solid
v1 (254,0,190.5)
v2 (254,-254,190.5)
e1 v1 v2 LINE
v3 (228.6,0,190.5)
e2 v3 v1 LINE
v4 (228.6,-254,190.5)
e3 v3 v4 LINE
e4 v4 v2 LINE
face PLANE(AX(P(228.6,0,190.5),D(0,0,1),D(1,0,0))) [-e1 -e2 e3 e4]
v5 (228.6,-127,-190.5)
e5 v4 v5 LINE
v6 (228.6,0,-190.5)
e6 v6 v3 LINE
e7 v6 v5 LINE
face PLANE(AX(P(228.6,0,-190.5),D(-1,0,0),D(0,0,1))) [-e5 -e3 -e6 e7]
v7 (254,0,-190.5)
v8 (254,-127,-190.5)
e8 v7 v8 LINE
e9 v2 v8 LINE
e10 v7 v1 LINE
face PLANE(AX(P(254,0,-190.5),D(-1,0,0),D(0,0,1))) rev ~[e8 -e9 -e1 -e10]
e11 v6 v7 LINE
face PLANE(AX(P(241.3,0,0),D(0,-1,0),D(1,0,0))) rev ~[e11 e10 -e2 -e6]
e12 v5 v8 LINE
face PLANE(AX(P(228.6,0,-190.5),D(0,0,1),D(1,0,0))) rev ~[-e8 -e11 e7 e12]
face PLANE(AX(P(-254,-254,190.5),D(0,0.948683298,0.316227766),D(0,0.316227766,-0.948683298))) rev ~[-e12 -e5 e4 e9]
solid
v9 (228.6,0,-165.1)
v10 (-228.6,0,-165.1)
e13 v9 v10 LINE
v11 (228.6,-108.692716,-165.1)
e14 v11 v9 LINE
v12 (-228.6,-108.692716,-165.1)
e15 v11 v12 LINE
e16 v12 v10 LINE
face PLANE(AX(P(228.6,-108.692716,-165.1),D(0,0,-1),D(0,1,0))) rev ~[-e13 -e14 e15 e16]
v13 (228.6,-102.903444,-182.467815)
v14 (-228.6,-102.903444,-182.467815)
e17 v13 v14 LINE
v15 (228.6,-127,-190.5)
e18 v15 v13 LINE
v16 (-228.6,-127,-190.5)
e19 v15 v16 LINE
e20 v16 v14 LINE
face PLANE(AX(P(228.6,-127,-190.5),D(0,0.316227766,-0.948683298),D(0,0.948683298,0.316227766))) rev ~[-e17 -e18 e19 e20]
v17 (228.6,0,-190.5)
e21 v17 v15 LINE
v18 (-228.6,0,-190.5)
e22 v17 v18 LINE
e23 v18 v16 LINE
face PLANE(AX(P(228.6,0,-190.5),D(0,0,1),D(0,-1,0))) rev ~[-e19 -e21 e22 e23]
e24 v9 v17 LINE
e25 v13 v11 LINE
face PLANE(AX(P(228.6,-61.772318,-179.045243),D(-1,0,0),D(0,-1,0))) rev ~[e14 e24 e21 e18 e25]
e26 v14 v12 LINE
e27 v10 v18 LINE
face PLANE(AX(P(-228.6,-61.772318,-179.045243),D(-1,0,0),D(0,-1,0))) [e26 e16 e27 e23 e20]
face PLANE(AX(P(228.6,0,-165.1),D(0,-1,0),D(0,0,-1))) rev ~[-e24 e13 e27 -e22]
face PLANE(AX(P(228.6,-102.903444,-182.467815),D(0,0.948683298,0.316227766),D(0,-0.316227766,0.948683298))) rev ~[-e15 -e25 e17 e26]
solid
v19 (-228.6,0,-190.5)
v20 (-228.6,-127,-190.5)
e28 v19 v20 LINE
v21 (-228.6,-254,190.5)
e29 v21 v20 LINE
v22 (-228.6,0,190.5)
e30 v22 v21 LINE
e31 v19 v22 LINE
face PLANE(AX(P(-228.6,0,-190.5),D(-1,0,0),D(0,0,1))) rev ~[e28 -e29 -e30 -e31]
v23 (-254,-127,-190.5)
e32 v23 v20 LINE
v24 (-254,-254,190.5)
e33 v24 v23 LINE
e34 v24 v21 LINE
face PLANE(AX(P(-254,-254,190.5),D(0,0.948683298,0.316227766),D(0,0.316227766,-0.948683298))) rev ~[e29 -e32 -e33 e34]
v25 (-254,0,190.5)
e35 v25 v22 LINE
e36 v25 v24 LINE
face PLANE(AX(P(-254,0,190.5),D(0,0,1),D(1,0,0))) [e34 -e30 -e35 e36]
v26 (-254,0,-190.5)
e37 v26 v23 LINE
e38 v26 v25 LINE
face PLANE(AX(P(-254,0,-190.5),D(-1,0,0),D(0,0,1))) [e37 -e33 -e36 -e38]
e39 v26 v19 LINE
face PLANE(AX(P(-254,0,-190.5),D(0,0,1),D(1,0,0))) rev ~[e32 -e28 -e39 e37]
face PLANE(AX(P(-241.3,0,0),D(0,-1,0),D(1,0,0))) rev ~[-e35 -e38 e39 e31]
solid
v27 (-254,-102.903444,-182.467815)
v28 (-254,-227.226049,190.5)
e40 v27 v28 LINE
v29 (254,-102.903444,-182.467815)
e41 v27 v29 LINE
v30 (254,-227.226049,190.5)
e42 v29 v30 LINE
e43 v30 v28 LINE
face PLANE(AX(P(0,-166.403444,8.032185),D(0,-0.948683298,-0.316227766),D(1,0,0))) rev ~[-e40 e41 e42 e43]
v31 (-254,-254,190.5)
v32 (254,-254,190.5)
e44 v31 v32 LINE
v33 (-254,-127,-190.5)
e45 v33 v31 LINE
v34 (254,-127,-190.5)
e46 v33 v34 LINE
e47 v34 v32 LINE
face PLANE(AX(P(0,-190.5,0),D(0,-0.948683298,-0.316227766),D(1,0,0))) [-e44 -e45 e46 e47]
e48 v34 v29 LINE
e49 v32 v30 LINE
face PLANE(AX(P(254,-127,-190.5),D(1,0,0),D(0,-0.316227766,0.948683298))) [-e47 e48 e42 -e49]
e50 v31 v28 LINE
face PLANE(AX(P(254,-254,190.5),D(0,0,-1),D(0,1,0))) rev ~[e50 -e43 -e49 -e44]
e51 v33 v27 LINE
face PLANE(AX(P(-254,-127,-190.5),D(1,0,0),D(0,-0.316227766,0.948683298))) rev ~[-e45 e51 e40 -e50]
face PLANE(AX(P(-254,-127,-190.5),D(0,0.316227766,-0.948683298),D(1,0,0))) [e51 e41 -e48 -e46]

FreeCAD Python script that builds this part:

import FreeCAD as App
import Part
import Sketcher

V = App.Vector
Q = App.Units.Quantity


def add_polygon(sketch, points):
    """Adds a closed chain of lines whose ends are joined by coincident constraints."""
    first, n = sketch.GeometryCount, len(points)
    for a, b in zip(points, points[1:] + points[:1]):
        sketch.addGeometry(Part.LineSegment(App.Vector(*a, 0), App.Vector(*b, 0)), False)
    for i in range(n):
        sketch.addConstraint(Sketcher.Constraint("Coincident", first + i, 2, first + (i + 1) % n, 1))

doc = App.newDocument("Part")
body = doc.addObject("PartDesign::Body", "Body")

# Sketch on XZ plane
sketch1 = body.newObject("Sketcher::SketchObject", "Sketch")
sketch1.AttachmentSupport = (doc.getObject("XZ_Plane"), [""])
sketch1.MapMode = "FlatFace"
add_polygon(sketch1, [(-254, 190.5), (-254, -190.5), (-228.6, -190.5), (-228.6, 190.5)])  # lines 0-3
sketch1.addConstraint(Sketcher.Constraint("Vertical", 0))
sketch1.addConstraint(Sketcher.Constraint("Horizontal", 1))
sketch1.addConstraint(Sketcher.Constraint("Vertical", 2))
sketch1.addConstraint(Sketcher.Constraint("Horizontal", 3))
sketch1.addConstraint(Sketcher.Constraint("DistanceX", 1, 1, 1, 2, Q("1 in")))
sketch1.addConstraint(Sketcher.Constraint("DistanceY", 0, 2, 0, 1, Q("15 in")))
sketch1.addConstraint(Sketcher.Constraint("DistanceX", 0, 2, -1, 1, Q("10 in")))
sketch1.addConstraint(Sketcher.Constraint("DistanceY", 0, 2, -1, 1, Q("7.5 in")))
pad1 = body.newObject("PartDesign::Pad", "Pad")
pad1.Profile = sketch1
pad1.Length = Q("10 in")
body2 = doc.addObject("PartDesign::Body", "Body001")

# Sketch on XZ plane
sketch2 = body2.newObject("Sketcher::SketchObject", "Sketch001")
sketch2.AttachmentSupport = (doc.getObject("XZ_Plane001"), [""])
sketch2.MapMode = "FlatFace"
add_polygon(sketch2, [(228.6, 190.5), (228.6, -190.5), (254, -190.5), (254, 190.5)])  # lines 0-3
sketch2.addConstraint(Sketcher.Constraint("Vertical", 0))
sketch2.addConstraint(Sketcher.Constraint("Horizontal", 1))
sketch2.addConstraint(Sketcher.Constraint("Vertical", 2))
sketch2.addConstraint(Sketcher.Constraint("Horizontal", 3))
sketch2.addConstraint(Sketcher.Constraint("DistanceX", 1, 1, 1, 2, Q("1 in")))
sketch2.addConstraint(Sketcher.Constraint("DistanceY", 0, 2, 0, 1, Q("15 in")))
sketch2.addConstraint(Sketcher.Constraint("DistanceX", -1, 1, 0, 2, Q("9 in")))
sketch2.addConstraint(Sketcher.Constraint("DistanceY", 0, 2, -1, 1, Q("7.5 in")))
pad2 = body2.newObject("PartDesign::Pad", "Pad001")
pad2.Profile = sketch2
pad2.Length = Q("10 in")
body3 = doc.addObject("PartDesign::Body", "Body002")

# Sketch on YZ plane
sketch3 = body3.newObject("Sketcher::SketchObject", "Sketch002")
sketch3.AttachmentSupport = (doc.getObject("YZ_Plane002"), [""])
sketch3.MapMode = "FlatFace"
sketch3.AttachmentOffset = App.Placement(V(0, 0, -10 * 25.4), App.Rotation())
add_polygon(sketch3, [(-127, -190.5), (-254, -190.5), (-254, 190.5)])  # lines 0-2
sketch3.addConstraint(Sketcher.Constraint("Horizontal", 0))
sketch3.addConstraint(Sketcher.Constraint("Vertical", 1))
sketch3.addConstraint(Sketcher.Constraint("DistanceX", 0, 2, 0, 1, Q("5 in")))
sketch3.addConstraint(Sketcher.Constraint("DistanceY", 1, 1, 1, 2, Q("15 in")))
sketch3.addConstraint(Sketcher.Constraint("DistanceX", 0, 2, -1, 1, Q("10 in")))
sketch3.addConstraint(Sketcher.Constraint("DistanceY", 0, 2, -1, 1, Q("7.5 in")))
pad3 = body3.newObject("PartDesign::Pad", "Pad002")
pad3.Profile = sketch3
pad3.Length = Q("25 in")
doc.recompute()

body4 = doc.addObject("PartDesign::Body", "Body003")
body4.BaseFeature = body3
boolean = body.newObject("PartDesign::Boolean", "Boolean")
boolean.Type = "Cut"
boolean.addObjects([body4])
doc.recompute()

boolean2 = body2.newObject("PartDesign::Boolean", "Boolean001")
boolean2.Type = "Cut"
boolean2.addObjects([body3])
body5 = doc.addObject("PartDesign::Body", "Body004")

# Sketch on an angled plane
sketch4 = body5.newObject("Sketcher::SketchObject", "Sketch003")
sketch4.Placement = App.Placement(V(0, -171.45, -57.15), App.Rotation(V(1, 0, 0), V(0, -0.316227766, 0.948683298), V(0, -0.948683298, -0.316227766), "ZXY"))
add_polygon(sketch4, [(-254, 261.046021), (-254, -140.563242), (254, -140.563242), (254, 261.046021)])  # lines 0-3
sketch4.addConstraint(Sketcher.Constraint("Vertical", 0))
sketch4.addConstraint(Sketcher.Constraint("Horizontal", 1))
sketch4.addConstraint(Sketcher.Constraint("Vertical", 2))
sketch4.addConstraint(Sketcher.Constraint("Horizontal", 3))
sketch4.addConstraint(Sketcher.Constraint("DistanceX", 1, 1, 1, 2, Q("20 in")))
sketch4.addConstraint(Sketcher.Constraint("DistanceX", 0, 2, -1, 1, Q("10 in")))
sketch4.addConstraint(Sketcher.Constraint("DistanceY", 0, 2, 0, 1, Q("401.609263 mm")))
sketch4.addConstraint(Sketcher.Constraint("DistanceY", 0, 2, -1, 1, Q("140.563242 mm")))
pad4 = body5.newObject("PartDesign::Pad", "Pad003")
pad4.Profile = sketch4
pad4.Length = Q("1 in")
pad4.Reversed = True

# Sketch on YZ plane
sketch5 = body5.newObject("Sketcher::SketchObject", "Sketch004")
sketch5.AttachmentSupport = (doc.getObject("YZ_Plane004"), [""])
sketch5.MapMode = "FlatFace"
sketch5.AttachmentOffset = App.Placement(V(0, 0, 10 * 25.4), App.Rotation())
add_polygon(sketch5, [(-227.226049, 190.5), (-229.903444, 198.532185), (-254, 190.5)])  # lines 0-2
sketch5.addConstraint(Sketcher.Constraint("Horizontal", 2))
sketch5.addConstraint(Sketcher.Constraint("Perpendicular", 0, 1))
sketch5.addConstraint(Sketcher.Constraint("Distance", 1, Q("1 in")))
sketch5.addConstraint(Sketcher.Constraint("DistanceX", 1, 2, -1, 1, Q("10 in")))
sketch5.addConstraint(Sketcher.Constraint("DistanceY", -1, 1, 1, 2, Q("7.5 in")))
sketch5.addConstraint(Sketcher.Constraint("DistanceX", 2, 1, 2, 2, Q("26.773951 mm")))
pocket1 = body5.newObject("PartDesign::Pocket", "Pocket")
pocket1.Profile = sketch5
pocket1.Type = "ThroughAll"
body6 = doc.addObject("PartDesign::Body", "Body005")

# Sketch on YZ plane
sketch6 = body6.newObject("Sketcher::SketchObject", "Sketch005")
sketch6.AttachmentSupport = (doc.getObject("YZ_Plane005"), [""])
sketch6.MapMode = "FlatFace"
sketch6.AttachmentOffset = App.Placement(V(0, 0, 9 * 25.4), App.Rotation())
add_polygon(sketch6, [(0, -190.5), (-127, -190.5), (-102.903444, -182.467815), (-108.692716, -165.1), (0, -165.1)])  # lines 0-4
sketch6.addConstraint(Sketcher.Constraint("Horizontal", 0))
sketch6.addConstraint(Sketcher.Constraint("Horizontal", 3))
sketch6.addConstraint(Sketcher.Constraint("Vertical", 4))
sketch6.addConstraint(Sketcher.Constraint("PointOnObject", 3, 2, -2))
sketch6.addConstraint(Sketcher.Constraint("Perpendicular", 1, 2))
sketch6.addConstraint(Sketcher.Constraint("DistanceX", 0, 2, 0, 1, Q("5 in")))
sketch6.addConstraint(Sketcher.Constraint("DistanceY", 4, 2, 4, 1, Q("1 in")))
sketch6.addConstraint(Sketcher.Constraint("Distance", 1, Q("1 in")))
sketch6.addConstraint(Sketcher.Constraint("DistanceY", 0, 2, -1, 1, Q("7.5 in")))
sketch6.addConstraint(Sketcher.Constraint("DistanceX", 3, 1, 3, 2, Q("108.692716 mm")))
pad5 = body6.newObject("PartDesign::Pad", "Pad004")
pad5.Profile = sketch6
pad5.Length = Q("18 in")
pad5.Reversed = True

doc.recompute()
